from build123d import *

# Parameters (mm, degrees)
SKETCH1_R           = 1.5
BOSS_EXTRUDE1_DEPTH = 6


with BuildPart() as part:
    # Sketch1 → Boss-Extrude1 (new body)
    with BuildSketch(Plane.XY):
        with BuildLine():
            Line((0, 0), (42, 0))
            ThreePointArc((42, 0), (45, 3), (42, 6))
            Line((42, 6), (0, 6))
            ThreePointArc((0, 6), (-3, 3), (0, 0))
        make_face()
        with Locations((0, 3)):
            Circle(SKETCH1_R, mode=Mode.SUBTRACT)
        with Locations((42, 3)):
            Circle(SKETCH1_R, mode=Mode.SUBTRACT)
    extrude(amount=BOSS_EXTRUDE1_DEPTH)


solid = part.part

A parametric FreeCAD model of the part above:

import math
import FreeCAD as App
import Part
import Sketcher
Q = App.Units.Quantity

doc = App.newDocument("Part")
body = doc.addObject("PartDesign::Body", "Body")

# Sketch on XY plane
sketch1 = body.newObject("Sketcher::SketchObject", "Sketch")
sketch1.AttachmentSupport = (doc.getObject("XY_Plane"), [""])
sketch1.MapMode = "FlatFace"
sketch1.addGeometry(Part.LineSegment(App.Vector(0, 0, 0), App.Vector(42, 0, 0)), False)
sketch1.addGeometry(Part.ArcOfCircle(Part.Circle(App.Vector(42, 3, 0), App.Vector(0, 0, 1), 3), math.radians(-90), math.radians(90)), False)
sketch1.addGeometry(Part.LineSegment(App.Vector(42, 6, 0), App.Vector(0, 6, 0)), False)
sketch1.addGeometry(Part.ArcOfCircle(Part.Circle(App.Vector(0, 3, 0), App.Vector(0, 0, 1), 3), math.radians(90), math.radians(270)), False)
sketch1.addGeometry(Part.Circle(App.Vector(0, 3, 0), App.Vector(0, 0, 1), 1.5), False)
sketch1.addGeometry(Part.Circle(App.Vector(42, 3, 0), App.Vector(0, 0, 1), 1.5), False)
sketch1.addConstraint(Sketcher.Constraint("Tangent", 0, 2, 1, 1))
sketch1.addConstraint(Sketcher.Constraint("Tangent", 1, 2, 2, 1))
sketch1.addConstraint(Sketcher.Constraint("Tangent", 2, 2, 3, 1))
sketch1.addConstraint(Sketcher.Constraint("Tangent", 3, 2, 0, 1))
sketch1.addConstraint(Sketcher.Constraint("Horizontal", 0))
sketch1.addConstraint(Sketcher.Constraint("Horizontal", 2))
sketch1.addConstraint(Sketcher.Constraint("Coincident", 3, 2, -1, 1))
sketch1.addConstraint(Sketcher.Constraint("Coincident", 4, 3, 3, 3))
sketch1.addConstraint(Sketcher.Constraint("Coincident", 5, 3, 1, 3))
sketch1.addConstraint(Sketcher.Constraint("Equal", 4, 5))
sketch1.addConstraint(Sketcher.Constraint("Diameter", 4, Q("3 mm")))
sketch1.addConstraint(Sketcher.Constraint("Radius", 1, Q("3 mm")))
sketch1.addConstraint(Sketcher.Constraint("DistanceX", 0, 1, 0, 2, Q("42 mm")))
pad1 = body.newObject("PartDesign::Pad", "Pad")
pad1.Profile = sketch1
pad1.Length = 6

doc.recompute()
